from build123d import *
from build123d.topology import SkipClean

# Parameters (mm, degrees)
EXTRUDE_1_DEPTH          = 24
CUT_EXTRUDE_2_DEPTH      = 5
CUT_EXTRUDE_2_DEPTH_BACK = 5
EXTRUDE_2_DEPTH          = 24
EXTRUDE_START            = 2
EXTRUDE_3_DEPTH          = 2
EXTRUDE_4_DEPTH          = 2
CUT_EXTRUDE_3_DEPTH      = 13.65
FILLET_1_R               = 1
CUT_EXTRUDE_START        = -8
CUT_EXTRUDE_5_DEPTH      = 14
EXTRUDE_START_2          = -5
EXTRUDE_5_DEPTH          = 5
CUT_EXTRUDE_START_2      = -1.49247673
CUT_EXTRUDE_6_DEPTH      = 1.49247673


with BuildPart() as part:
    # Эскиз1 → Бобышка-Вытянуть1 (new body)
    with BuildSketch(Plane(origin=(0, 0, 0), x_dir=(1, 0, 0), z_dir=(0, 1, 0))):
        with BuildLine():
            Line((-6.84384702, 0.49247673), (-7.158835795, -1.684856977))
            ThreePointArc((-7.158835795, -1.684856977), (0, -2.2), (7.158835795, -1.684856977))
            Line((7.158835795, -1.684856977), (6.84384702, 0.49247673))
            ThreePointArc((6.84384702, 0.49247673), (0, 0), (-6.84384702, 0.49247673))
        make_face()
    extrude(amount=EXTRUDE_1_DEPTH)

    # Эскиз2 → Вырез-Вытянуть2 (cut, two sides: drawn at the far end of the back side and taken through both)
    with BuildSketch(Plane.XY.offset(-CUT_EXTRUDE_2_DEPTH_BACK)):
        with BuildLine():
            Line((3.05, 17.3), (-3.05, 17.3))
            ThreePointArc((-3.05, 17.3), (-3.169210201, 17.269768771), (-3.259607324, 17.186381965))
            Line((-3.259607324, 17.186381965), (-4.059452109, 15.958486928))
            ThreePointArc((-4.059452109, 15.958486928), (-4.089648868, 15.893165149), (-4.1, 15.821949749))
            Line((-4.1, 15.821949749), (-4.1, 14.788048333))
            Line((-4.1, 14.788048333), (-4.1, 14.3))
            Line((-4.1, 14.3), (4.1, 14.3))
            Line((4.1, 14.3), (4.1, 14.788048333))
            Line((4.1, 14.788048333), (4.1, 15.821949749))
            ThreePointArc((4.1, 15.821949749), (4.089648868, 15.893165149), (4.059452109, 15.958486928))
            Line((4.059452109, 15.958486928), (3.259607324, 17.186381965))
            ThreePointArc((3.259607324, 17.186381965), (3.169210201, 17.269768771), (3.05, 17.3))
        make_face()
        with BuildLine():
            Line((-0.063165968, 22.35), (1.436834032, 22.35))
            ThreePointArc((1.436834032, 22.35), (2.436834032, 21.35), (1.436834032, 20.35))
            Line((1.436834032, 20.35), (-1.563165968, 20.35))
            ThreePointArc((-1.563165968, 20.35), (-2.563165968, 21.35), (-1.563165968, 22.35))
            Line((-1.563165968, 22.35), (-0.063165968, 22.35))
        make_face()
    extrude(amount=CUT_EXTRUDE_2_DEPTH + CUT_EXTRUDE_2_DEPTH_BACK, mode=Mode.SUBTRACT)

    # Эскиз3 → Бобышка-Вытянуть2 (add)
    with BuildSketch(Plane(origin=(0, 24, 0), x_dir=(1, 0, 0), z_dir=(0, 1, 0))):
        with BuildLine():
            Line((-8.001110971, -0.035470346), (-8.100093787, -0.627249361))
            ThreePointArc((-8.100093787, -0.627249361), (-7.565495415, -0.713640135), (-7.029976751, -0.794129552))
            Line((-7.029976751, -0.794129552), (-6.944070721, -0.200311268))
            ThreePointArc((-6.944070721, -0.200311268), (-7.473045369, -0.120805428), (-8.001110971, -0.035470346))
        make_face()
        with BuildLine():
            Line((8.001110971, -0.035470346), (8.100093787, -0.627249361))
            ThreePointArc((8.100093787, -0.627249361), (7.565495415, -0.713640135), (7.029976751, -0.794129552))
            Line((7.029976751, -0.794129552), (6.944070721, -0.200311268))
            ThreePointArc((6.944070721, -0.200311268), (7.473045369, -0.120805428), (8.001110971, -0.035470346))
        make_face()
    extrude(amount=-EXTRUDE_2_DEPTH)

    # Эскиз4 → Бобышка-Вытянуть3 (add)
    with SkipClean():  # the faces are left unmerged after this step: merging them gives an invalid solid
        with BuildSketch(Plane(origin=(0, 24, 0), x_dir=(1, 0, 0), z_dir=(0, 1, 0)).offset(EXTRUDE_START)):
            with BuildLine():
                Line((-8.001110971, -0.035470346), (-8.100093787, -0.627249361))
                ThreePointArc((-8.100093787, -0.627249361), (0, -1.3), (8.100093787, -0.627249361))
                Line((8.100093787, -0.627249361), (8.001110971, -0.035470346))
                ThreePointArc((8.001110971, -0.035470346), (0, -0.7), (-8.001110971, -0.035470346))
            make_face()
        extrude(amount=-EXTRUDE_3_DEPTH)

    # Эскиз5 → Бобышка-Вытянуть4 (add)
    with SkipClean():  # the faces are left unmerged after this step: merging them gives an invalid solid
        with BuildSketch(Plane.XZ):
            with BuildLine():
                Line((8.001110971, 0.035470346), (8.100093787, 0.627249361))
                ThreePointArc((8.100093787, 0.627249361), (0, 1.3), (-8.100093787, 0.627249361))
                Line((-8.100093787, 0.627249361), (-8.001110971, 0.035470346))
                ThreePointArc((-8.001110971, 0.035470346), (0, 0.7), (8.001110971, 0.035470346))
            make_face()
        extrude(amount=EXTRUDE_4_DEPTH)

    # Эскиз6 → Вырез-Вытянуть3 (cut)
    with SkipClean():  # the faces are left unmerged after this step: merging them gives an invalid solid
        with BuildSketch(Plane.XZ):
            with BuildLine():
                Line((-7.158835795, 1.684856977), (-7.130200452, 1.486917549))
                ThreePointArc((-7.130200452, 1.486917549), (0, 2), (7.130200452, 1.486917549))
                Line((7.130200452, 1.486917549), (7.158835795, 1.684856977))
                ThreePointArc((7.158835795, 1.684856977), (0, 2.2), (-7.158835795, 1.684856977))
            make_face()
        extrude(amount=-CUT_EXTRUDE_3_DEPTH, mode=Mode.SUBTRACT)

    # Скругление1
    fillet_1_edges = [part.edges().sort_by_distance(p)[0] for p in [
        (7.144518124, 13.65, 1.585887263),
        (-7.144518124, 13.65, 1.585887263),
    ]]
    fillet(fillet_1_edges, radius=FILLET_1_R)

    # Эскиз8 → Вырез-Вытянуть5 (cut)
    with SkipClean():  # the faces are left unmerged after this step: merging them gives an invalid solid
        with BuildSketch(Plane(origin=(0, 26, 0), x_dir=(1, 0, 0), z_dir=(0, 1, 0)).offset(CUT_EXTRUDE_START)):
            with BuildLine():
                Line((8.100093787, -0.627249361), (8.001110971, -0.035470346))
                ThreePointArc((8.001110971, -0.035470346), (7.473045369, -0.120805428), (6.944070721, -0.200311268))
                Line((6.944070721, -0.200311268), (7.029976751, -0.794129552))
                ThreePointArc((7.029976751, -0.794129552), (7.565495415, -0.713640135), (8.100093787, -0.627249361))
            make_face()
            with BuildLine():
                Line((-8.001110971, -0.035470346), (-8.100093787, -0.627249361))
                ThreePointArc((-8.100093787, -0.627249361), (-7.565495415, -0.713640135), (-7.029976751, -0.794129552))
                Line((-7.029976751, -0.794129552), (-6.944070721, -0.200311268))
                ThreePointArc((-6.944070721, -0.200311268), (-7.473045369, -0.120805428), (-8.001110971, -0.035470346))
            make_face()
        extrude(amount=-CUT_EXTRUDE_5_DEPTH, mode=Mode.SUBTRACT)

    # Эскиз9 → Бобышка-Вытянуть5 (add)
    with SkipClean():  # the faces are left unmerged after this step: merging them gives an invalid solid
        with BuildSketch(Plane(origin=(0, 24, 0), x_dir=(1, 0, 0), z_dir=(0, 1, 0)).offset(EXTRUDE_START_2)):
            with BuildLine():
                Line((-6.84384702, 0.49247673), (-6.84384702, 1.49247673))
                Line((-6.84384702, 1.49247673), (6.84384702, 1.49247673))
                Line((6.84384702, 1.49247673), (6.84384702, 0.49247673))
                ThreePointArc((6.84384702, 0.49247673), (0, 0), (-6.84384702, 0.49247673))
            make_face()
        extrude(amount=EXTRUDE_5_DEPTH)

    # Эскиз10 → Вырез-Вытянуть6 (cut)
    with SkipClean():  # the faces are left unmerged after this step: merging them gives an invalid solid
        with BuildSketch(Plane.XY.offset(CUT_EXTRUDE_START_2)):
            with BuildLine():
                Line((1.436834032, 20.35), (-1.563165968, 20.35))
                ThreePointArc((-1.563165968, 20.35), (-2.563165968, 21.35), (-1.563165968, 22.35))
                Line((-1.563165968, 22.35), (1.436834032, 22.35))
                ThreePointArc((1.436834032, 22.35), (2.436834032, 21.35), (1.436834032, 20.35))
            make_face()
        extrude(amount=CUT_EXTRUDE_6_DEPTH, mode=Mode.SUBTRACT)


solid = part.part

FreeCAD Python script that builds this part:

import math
import FreeCAD as App
import Part
import Sketcher

V = App.Vector
Q = App.Units.Quantity


def edges_at(feature, points):
    """Names of the edges that pass closest to the given points."""
    edges = feature.Shape.Edges
    near = lambda p: min(range(len(edges)), key=lambda i: edges[i].distToShape(Part.Vertex(*p))[0])
    return sorted({f"Edge{near(p) + 1}" for p in points})

doc = App.newDocument("Part")
body = doc.addObject("PartDesign::Body", "Body")

# Sketch on XZ plane
sketch1 = body.newObject("Sketcher::SketchObject", "Sketch")
sketch1.AttachmentSupport = (doc.getObject("XZ_Plane"), [""])
sketch1.MapMode = "FlatFace"
sketch1.addGeometry([
    Part.LineSegment(V(-6.843847, -0.492477, 0), V(-7.158836, 1.684857, 0)),
    Part.ArcOfCircle(Part.Circle(V(0, -47.8, 0), V(0, 0, 1), 50), math.radians(81.768289), math.radians(98.231711)),
    Part.LineSegment(V(7.158836, 1.684857, 0), V(6.843847, -0.492477, 0)),
    Part.ArcOfCircle(Part.Circle(V(0, -47.8, 0), V(0, 0, 1), 47.8), math.radians(81.768289), math.radians(98.231711)),
], False)
sketch1.addConstraint([
    Sketcher.Constraint("Coincident", 0, 2, 1, 2),
    Sketcher.Constraint("Coincident", 1, 1, 2, 1),
    Sketcher.Constraint("Coincident", 2, 2, 3, 1),
    Sketcher.Constraint("Coincident", 3, 2, 0, 1),
    Sketcher.Constraint("Coincident", 3, 3, 1, 3),
    Sketcher.Constraint("Symmetric", 0, 2, 1, 1, -2),
    Sketcher.Constraint("Horizontal", 2, 2, 3, 2),
    Sketcher.Constraint("Radius", 1, Q("50 mm")),
    Sketcher.Constraint("Radius", 3, Q("47.8 mm")),
    Sketcher.Constraint("DistanceY", 1, 3, -1, 1, Q("47.8 mm")),
    Sketcher.Constraint("DistanceX", 0, 2, 1, 1, Q("14.317672 mm")),
    Sketcher.Constraint("DistanceX", 2, 2, 1, 1, Q("0.314989 mm")),
])
pad1 = body.newObject("PartDesign::Pad", "Pad")
pad1.Profile = sketch1
pad1.Length = 24
pad1.Reversed = True

# Sketch on XY plane
sketch2 = body.newObject("Sketcher::SketchObject", "Sketch001")
sketch2.AttachmentSupport = (doc.getObject("XY_Plane"), [""])
sketch2.MapMode = "FlatFace"
sketch2.addGeometry([
    Part.LineSegment(V(3.05, 17.3, 0), V(-3.05, 17.3, 0)),  # 0
    Part.ArcOfCircle(Part.Circle(V(-3.05, 17.049845, 0), V(0, 0, 1), 0.250155), math.radians(90), math.radians(146.919977)),  # 1
    Part.LineSegment(V(-3.259607, 17.186382, 0), V(-4.059452, 15.958487, 0)),  # 2
    Part.ArcOfCircle(Part.Circle(V(-3.849845, 15.82195, 0), V(0, 0, 1), 0.250155), math.radians(146.919977), math.radians(180)),  # 3
    Part.LineSegment(V(-4.1, 15.82195, 0), V(-4.1, 14.3, 0)),  # 4
    Part.LineSegment(V(-4.1, 14.3, 0), V(4.1, 14.3, 0)),  # 5
    Part.LineSegment(V(4.1, 14.3, 0), V(4.1, 15.82195, 0)),  # 6
    Part.ArcOfCircle(Part.Circle(V(3.849845, 15.82195, 0), V(0, 0, 1), 0.250155), math.radians(0), math.radians(33.080023)),  # 7
    Part.LineSegment(V(4.059452, 15.958487, 0), V(3.259607, 17.186382, 0)),  # 8
    Part.ArcOfCircle(Part.Circle(V(3.05, 17.049845, 0), V(0, 0, 1), 0.250155), math.radians(33.080023), math.radians(90)),  # 9
    Part.ArcOfCircle(Part.Circle(V(1.436834, 21.35, 0), V(0, 0, 1), 1), math.radians(-90), math.radians(90)),  # 10
    Part.LineSegment(V(1.436834, 22.35, 0), V(-1.563166, 22.35, 0)),  # 11
    Part.ArcOfCircle(Part.Circle(V(-1.563166, 21.35, 0), V(0, 0, 1), 1), math.radians(90), math.radians(270)),  # 12
    Part.LineSegment(V(-1.563166, 20.35, 0), V(1.436834, 20.35, 0)),  # 13
], False)
sketch2.addConstraint([
    Sketcher.Constraint("Tangent", 0, 2, 1, 1),
    Sketcher.Constraint("Tangent", 1, 2, 2, 1),
    Sketcher.Constraint("Tangent", 2, 2, 3, 1),
    Sketcher.Constraint("Tangent", 3, 2, 4, 1),
    Sketcher.Constraint("Coincident", 4, 2, 5, 1),
    Sketcher.Constraint("Coincident", 5, 2, 6, 1),
    Sketcher.Constraint("Tangent", 6, 2, 7, 1),
    Sketcher.Constraint("Tangent", 7, 2, 8, 1),
    Sketcher.Constraint("Tangent", 8, 2, 9, 1),
    Sketcher.Constraint("Tangent", 9, 2, 0, 1),
    Sketcher.Constraint("Tangent", 10, 2, 11, 1),
    Sketcher.Constraint("Tangent", 11, 2, 12, 1),
    Sketcher.Constraint("Tangent", 12, 2, 13, 1),
    Sketcher.Constraint("Tangent", 13, 2, 10, 1),
    Sketcher.Constraint("Horizontal", 0),
    Sketcher.Constraint("Vertical", 4),
    Sketcher.Constraint("Horizontal", 5),
    Sketcher.Constraint("Vertical", 6),
    Sketcher.Constraint("Horizontal", 11),
    Sketcher.Constraint("Horizontal", 13),
    Sketcher.Constraint("Equal", 1, 3),
    Sketcher.Constraint("Equal", 3, 7),
    Sketcher.Constraint("Equal", 7, 9),
    Sketcher.Constraint("Symmetric", 3, 3, 7, 3, -2),
    Sketcher.Constraint("Horizontal", 2, 2, 7, 2),
    Sketcher.Constraint("Radius", 10, Q("1 mm")),
    Sketcher.Constraint("DistanceX", 11, 2, 11, 1, Q("3 mm")),
    Sketcher.Constraint("DistanceX", 0, 2, 0, 1, Q("6.1 mm")),
    Sketcher.Constraint("DistanceX", 5, 1, 5, 2, Q("8.2 mm")),
    Sketcher.Constraint("DistanceY", 5, 2, 0, 2, Q("3 mm")),
    Sketcher.Constraint("DistanceY", -1, 1, 0, 2, Q("17.3 mm")),
    Sketcher.Constraint("DistanceY", -1, 1, 10, 3, Q("21.35 mm")),
    Sketcher.Constraint("Radius", 1, Q("0.250155 mm")),
    Sketcher.Constraint("DistanceY", 4, 2, 4, 1, Q("1.52195 mm")),
    Sketcher.Constraint("DistanceX", 10, 3, 7, 3, Q("2.413011 mm")),
])
pocket1 = body.newObject("PartDesign::Pocket", "Pocket")
pocket1.Profile = sketch2
pocket1.Type = "ThroughAll"
pocket1.Midplane = True

# Sketch on XZ plane
sketch3 = body.newObject("Sketcher::SketchObject", "Sketch002")
sketch3.AttachmentSupport = (doc.getObject("XZ_Plane"), [""])
sketch3.MapMode = "FlatFace"
sketch3.AttachmentOffset = App.Placement(V(0, 0, -24), App.Rotation())
sketch3.addGeometry([
    Part.LineSegment(V(-8.001111, 0.03547, 0), V(-8.100094, 0.627249, 0)),  # 0
    Part.ArcOfCircle(Part.Circle(V(0, -47.800002, 0), V(0, 0, 1), 49.100002), math.radians(98.231711), math.radians(99.495571)),  # 1
    Part.LineSegment(V(-7.029977, 0.79413, 0), V(-6.944071, 0.200311, 0)),  # 2
    Part.ArcOfCircle(Part.Circle(V(0.000001, -47.800007, 0), V(0, 0, 1), 48.500007), math.radians(98.231711), math.radians(99.495571)),  # 3
    Part.LineSegment(V(8.100094, 0.627249, 0), V(8.001111, 0.03547, 0)),  # 4
    Part.ArcOfCircle(Part.Circle(V(-0.000001, -47.800007, 0), V(0, 0, 1), 48.500007), math.radians(80.504429), math.radians(81.768289)),  # 5
    Part.LineSegment(V(6.944071, 0.200311, 0), V(7.029977, 0.79413, 0)),  # 6
    Part.ArcOfCircle(Part.Circle(V(0, -47.800002, 0), V(0, 0, 1), 49.100002), math.radians(80.504429), math.radians(81.768289)),  # 7
], False)
sketch3.addConstraint([
    Sketcher.Constraint("Coincident", 0, 2, 1, 2),
    Sketcher.Constraint("Coincident", 1, 1, 2, 1),
    Sketcher.Constraint("Coincident", 2, 2, 3, 1),
    Sketcher.Constraint("Coincident", 3, 2, 0, 1),
    Sketcher.Constraint("Coincident", 4, 2, 5, 1),
    Sketcher.Constraint("Coincident", 5, 2, 6, 1),
    Sketcher.Constraint("Coincident", 6, 2, 7, 2),
    Sketcher.Constraint("Coincident", 7, 1, 4, 1),
    Sketcher.Constraint("Coincident", 3, 3, 1, 3),
    Sketcher.Constraint("Coincident", 5, 3, 1, 3),
    Sketcher.Constraint("Coincident", 7, 3, 1, 3),
    Sketcher.Constraint("Equal", 3, 5),
    Sketcher.Constraint("Equal", 1, 7),
    Sketcher.Constraint("Symmetric", 3, 2, 4, 2, -2),
    Sketcher.Constraint("Horizontal", 2, 2, 5, 2),
    Sketcher.Constraint("Horizontal", 1, 1, 6, 2),
    Sketcher.Constraint("Horizontal", 0, 2, 7, 1),
    Sketcher.Constraint("Radius", 1, Q("49.100002 mm")),
    Sketcher.Constraint("Distance", 0, Q("0.6 mm")),
    Sketcher.Constraint("DistanceY", 1, 3, -1, 1, Q("47.800002 mm")),
    Sketcher.Constraint("DistanceY", -1, 1, 0, 2, Q("0.627249 mm")),
    Sketcher.Constraint("DistanceY", -1, 1, 1, 1, Q("0.79413 mm")),
    Sketcher.Constraint("DistanceX", 2, 2, -1, 1, Q("6.944071 mm")),
    Sketcher.Constraint("DistanceX", 3, 2, -1, 1, Q("8.001111 mm")),
])
pad2 = body.newObject("PartDesign::Pad", "Pad001")
pad2.Profile = sketch3
pad2.Length = 24

# Sketch on XZ plane
sketch4 = body.newObject("Sketcher::SketchObject", "Sketch003")
sketch4.AttachmentSupport = (doc.getObject("XZ_Plane"), [""])
sketch4.MapMode = "FlatFace"
sketch4.AttachmentOffset = App.Placement(V(0, 0, -26), App.Rotation())
sketch4.addGeometry([
    Part.LineSegment(V(-8.001111, 0.03547, 0), V(-8.100094, 0.627249, 0)),
    Part.ArcOfCircle(Part.Circle(V(0, -47.8, 0), V(0, 0, 1), 49.1), math.radians(80.504429), math.radians(99.495571)),
    Part.LineSegment(V(8.100094, 0.627249, 0), V(8.001111, 0.03547, 0)),
    Part.ArcOfCircle(Part.Circle(V(0, -47.8, 0), V(0, 0, 1), 48.5), math.radians(80.504429), math.radians(99.495571)),
], False)
sketch4.addConstraint([
    Sketcher.Constraint("Coincident", 0, 2, 1, 2),
    Sketcher.Constraint("Coincident", 1, 1, 2, 1),
    Sketcher.Constraint("Coincident", 2, 2, 3, 1),
    Sketcher.Constraint("Coincident", 3, 2, 0, 1),
    Sketcher.Constraint("Coincident", 3, 3, 1, 3),
    Sketcher.Constraint("Symmetric", 0, 2, 1, 1, -2),
    Sketcher.Constraint("Horizontal", 2, 2, 3, 2),
    Sketcher.Constraint("Radius", 1, Q("49.1 mm")),
    Sketcher.Constraint("Radius", 3, Q("48.5 mm")),
    Sketcher.Constraint("DistanceY", 1, 3, -1, 1, Q("47.8 mm")),
    Sketcher.Constraint("DistanceY", -1, 1, 0, 2, Q("0.627249 mm")),
    Sketcher.Constraint("DistanceX", -1, 1, 2, 2, Q("8.001111 mm")),
])
pad3 = body.newObject("PartDesign::Pad", "Pad002")
pad3.Profile = sketch4
pad3.Length = 2

# Sketch on XZ plane
sketch5 = body.newObject("Sketcher::SketchObject", "Sketch004")
sketch5.AttachmentSupport = (doc.getObject("XZ_Plane"), [""])
sketch5.MapMode = "FlatFace"
sketch5.addGeometry([
    Part.LineSegment(V(8.001111, 0.03547, 0), V(8.100094, 0.627249, 0)),
    Part.ArcOfCircle(Part.Circle(V(0, -47.8, 0), V(0, 0, 1), 49.1), math.radians(80.504429), math.radians(99.495571)),
    Part.LineSegment(V(-8.100094, 0.627249, 0), V(-8.001111, 0.03547, 0)),
    Part.ArcOfCircle(Part.Circle(V(0, -47.8, 0), V(0, 0, 1), 48.5), math.radians(80.504429), math.radians(99.495571)),
], False)
sketch5.addConstraint([
    Sketcher.Constraint("Coincident", 0, 2, 1, 1),
    Sketcher.Constraint("Coincident", 1, 2, 2, 1),
    Sketcher.Constraint("Coincident", 2, 2, 3, 2),
    Sketcher.Constraint("Coincident", 3, 1, 0, 1),
    Sketcher.Constraint("Coincident", 3, 3, 1, 3),
    Sketcher.Constraint("Symmetric", 0, 2, 1, 2, -2),
    Sketcher.Constraint("Horizontal", 2, 2, 3, 1),
    Sketcher.Constraint("Radius", 1, Q("49.1 mm")),
    Sketcher.Constraint("Radius", 3, Q("48.5 mm")),
    Sketcher.Constraint("DistanceY", 1, 3, -1, 1, Q("47.8 mm")),
    Sketcher.Constraint("DistanceY", -1, 1, 0, 2, Q("0.627249 mm")),
    Sketcher.Constraint("DistanceX", 2, 2, -1, 1, Q("8.001111 mm")),
])
pad4 = body.newObject("PartDesign::Pad", "Pad003")
pad4.Profile = sketch5
pad4.Length = 2

# Sketch on XZ plane
sketch6 = body.newObject("Sketcher::SketchObject", "Sketch005")
sketch6.AttachmentSupport = (doc.getObject("XZ_Plane"), [""])
sketch6.MapMode = "FlatFace"
sketch6.addGeometry([
    Part.LineSegment(V(-7.158836, 1.684857, 0), V(-7.1302, 1.486918, 0)),
    Part.ArcOfCircle(Part.Circle(V(0, -47.8, 0), V(0, 0, 1), 49.8), math.radians(81.768289), math.radians(98.231711)),
    Part.LineSegment(V(7.1302, 1.486918, 0), V(7.158836, 1.684857, 0)),
    Part.ArcOfCircle(Part.Circle(V(0, -47.8, 0), V(0, 0, 1), 50), math.radians(81.768289), math.radians(98.231711)),
], False)
sketch6.addConstraint([
    Sketcher.Constraint("Coincident", 0, 2, 1, 2),
    Sketcher.Constraint("Coincident", 1, 1, 2, 1),
    Sketcher.Constraint("Coincident", 2, 2, 3, 1),
    Sketcher.Constraint("Coincident", 3, 2, 0, 1),
    Sketcher.Constraint("Coincident", 3, 3, 1, 3),
    Sketcher.Constraint("Symmetric", 0, 2, 1, 1, -2),
    Sketcher.Constraint("Horizontal", 2, 2, 3, 2),
    Sketcher.Constraint("Radius", 3, Q("50 mm")),
    Sketcher.Constraint("Radius", 1, Q("49.8 mm")),
    Sketcher.Constraint("DistanceY", 1, 3, -1, 1, Q("47.8 mm")),
    Sketcher.Constraint("DistanceX", 0, 2, -1, 1, Q("7.1302 mm")),
    Sketcher.Constraint("DistanceY", 1, 1, 2, 2, Q("0.197939 mm")),
])
pocket2 = body.newObject("PartDesign::Pocket", "Pocket001")
pocket2.Profile = sketch6
pocket2.Length = 13.65
doc.recompute()

fillet = body.newObject("PartDesign::Fillet", "Fillet")
fillet.Base = (pocket2, edges_at(pocket2, [(7.145, 13.65, 1.586), (-7.145, 13.65, 1.586)]))
fillet.Radius = 1

# Sketch on XZ plane
sketch7 = body.newObject("Sketcher::SketchObject", "Sketch006")
sketch7.AttachmentSupport = (doc.getObject("XZ_Plane"), [""])
sketch7.MapMode = "FlatFace"
sketch7.AttachmentOffset = App.Placement(V(0, 0, -18), App.Rotation())
sketch7.addGeometry([
    Part.LineSegment(V(8.100094, 0.627249, 0), V(8.001111, 0.03547, 0)),  # 0
    Part.ArcOfCircle(Part.Circle(V(-0.000001, -47.800007, 0), V(0, 0, 1), 48.500007), math.radians(80.504429), math.radians(81.768289)),  # 1
    Part.LineSegment(V(6.944071, 0.200311, 0), V(7.029977, 0.79413, 0)),  # 2
    Part.ArcOfCircle(Part.Circle(V(0, -47.800002, 0), V(0, 0, 1), 49.100002), math.radians(80.504429), math.radians(81.768289)),  # 3
    Part.LineSegment(V(-8.001111, 0.03547, 0), V(-8.100094, 0.627249, 0)),  # 4
    Part.ArcOfCircle(Part.Circle(V(0, -47.800002, 0), V(0, 0, 1), 49.100002), math.radians(98.231711), math.radians(99.495571)),  # 5
    Part.LineSegment(V(-7.029977, 0.79413, 0), V(-6.944071, 0.200311, 0)),  # 6
    Part.ArcOfCircle(Part.Circle(V(0.000001, -47.800007, 0), V(0, 0, 1), 48.500007), math.radians(98.231711), math.radians(99.495571)),  # 7
], False)
sketch7.addConstraint([
    Sketcher.Constraint("Coincident", 0, 2, 1, 1),
    Sketcher.Constraint("Coincident", 1, 2, 2, 1),
    Sketcher.Constraint("Coincident", 2, 2, 3, 2),
    Sketcher.Constraint("Coincident", 3, 1, 0, 1),
    Sketcher.Constraint("Coincident", 4, 2, 5, 2),
    Sketcher.Constraint("Coincident", 5, 1, 6, 1),
    Sketcher.Constraint("Coincident", 6, 2, 7, 1),
    Sketcher.Constraint("Coincident", 7, 2, 4, 1),
    Sketcher.Constraint("Coincident", 3, 3, 1, 3),
    Sketcher.Constraint("Coincident", 5, 3, 1, 3),
    Sketcher.Constraint("Coincident", 7, 3, 1, 3),
    Sketcher.Constraint("Equal", 3, 5),
    Sketcher.Constraint("Equal", 1, 7),
    Sketcher.Constraint("Symmetric", 3, 1, 4, 2, -2),
    Sketcher.Constraint("Horizontal", 2, 2, 5, 1),
    Sketcher.Constraint("Horizontal", 1, 2, 6, 2),
    Sketcher.Constraint("Horizontal", 0, 2, 7, 2),
    Sketcher.Constraint("Radius", 3, Q("49.100002 mm")),
    Sketcher.Constraint("Distance", 0, Q("0.6 mm")),
    Sketcher.Constraint("DistanceY", 3, 3, -1, 1, Q("47.800002 mm")),
    Sketcher.Constraint("DistanceX", -1, 1, 0, 2, Q("8.001111 mm")),
    Sketcher.Constraint("DistanceX", -1, 1, 1, 2, Q("6.944071 mm")),
    Sketcher.Constraint("DistanceY", -1, 1, 2, 2, Q("0.79413 mm")),
    Sketcher.Constraint("DistanceY", -1, 1, 3, 1, Q("0.627249 mm")),
])
pocket3 = body.newObject("PartDesign::Pocket", "Pocket002")
pocket3.Profile = sketch7
pocket3.Length = 14
pocket3.Reversed = True

# Sketch on XZ plane
sketch8 = body.newObject("Sketcher::SketchObject", "Sketch007")
sketch8.AttachmentSupport = (doc.getObject("XZ_Plane"), [""])
sketch8.MapMode = "FlatFace"
sketch8.AttachmentOffset = App.Placement(V(0, 0, -19), App.Rotation())
sketch8.addGeometry([
    Part.LineSegment(V(-6.843847, -1.492477, 0), V(-6.843847, -0.492477, 0)),
    Part.ArcOfCircle(Part.Circle(V(0, -47.8, 0), V(0, 0, 1), 47.8), math.radians(81.768289), math.radians(98.231711)),
    Part.LineSegment(V(6.843847, -0.492477, 0), V(6.843847, -1.492477, 0)),
    Part.LineSegment(V(6.843847, -1.492477, 0), V(-6.843847, -1.492477, 0)),
], False)
sketch8.addConstraint([
    Sketcher.Constraint("Coincident", 0, 2, 1, 2),
    Sketcher.Constraint("Coincident", 1, 1, 2, 1),
    Sketcher.Constraint("Coincident", 2, 2, 3, 1),
    Sketcher.Constraint("Coincident", 3, 2, 0, 1),
    Sketcher.Constraint("Vertical", 0),
    Sketcher.Constraint("Vertical", 2),
    Sketcher.Constraint("Horizontal", 3),
    Sketcher.Constraint("Symmetric", 0, 2, 1, 1, -2),
    Sketcher.Constraint("Radius", 1, Q("47.8 mm")),
    Sketcher.Constraint("DistanceY", 0, 1, 0, 2, Q("1 mm")),
    Sketcher.Constraint("DistanceY", 1, 3, -1, 1, Q("47.8 mm")),
    Sketcher.Constraint("DistanceX", 3, 2, 3, 1, Q("13.687694 mm")),
])
pad5 = body.newObject("PartDesign::Pad", "Pad004")
pad5.Profile = sketch8
pad5.Length = 5
pad5.Reversed = True

# Sketch on XY plane
sketch9 = body.newObject("Sketcher::SketchObject", "Sketch008")
sketch9.AttachmentSupport = (doc.getObject("XY_Plane"), [""])
sketch9.MapMode = "FlatFace"
sketch9.AttachmentOffset = App.Placement(V(0, 0, -1.492477), App.Rotation())
sketch9.addGeometry([
    Part.LineSegment(V(-1.563166, 20.35, 0), V(1.436834, 20.35, 0)),
    Part.ArcOfCircle(Part.Circle(V(1.436834, 21.35, 0), V(0, 0, 1), 1), math.radians(-90), math.radians(90)),
    Part.LineSegment(V(1.436834, 22.35, 0), V(-1.563166, 22.35, 0)),
    Part.ArcOfCircle(Part.Circle(V(-1.563166, 21.35, 0), V(0, 0, 1), 1), math.radians(90), math.radians(270)),
], False)
sketch9.addConstraint([
    Sketcher.Constraint("Tangent", 0, 2, 1, 1),
    Sketcher.Constraint("Tangent", 1, 2, 2, 1),
    Sketcher.Constraint("Tangent", 2, 2, 3, 1),
    Sketcher.Constraint("Tangent", 3, 2, 0, 1),
    Sketcher.Constraint("Horizontal", 0),
    Sketcher.Constraint("Horizontal", 2),
    Sketcher.Constraint("Radius", 1, Q("1 mm")),
    Sketcher.Constraint("DistanceX", 0, 1, 0, 2, Q("3 mm")),
    Sketcher.Constraint("DistanceY", -1, 1, 1, 3, Q("21.35 mm")),
    Sketcher.Constraint("DistanceX", -1, 1, 1, 3, Q("1.436834 mm")),
])
pocket4 = body.newObject("PartDesign::Pocket", "Pocket003")
pocket4.Profile = sketch9
pocket4.Length = 1.492477
pocket4.Reversed = True

doc.recompute()
